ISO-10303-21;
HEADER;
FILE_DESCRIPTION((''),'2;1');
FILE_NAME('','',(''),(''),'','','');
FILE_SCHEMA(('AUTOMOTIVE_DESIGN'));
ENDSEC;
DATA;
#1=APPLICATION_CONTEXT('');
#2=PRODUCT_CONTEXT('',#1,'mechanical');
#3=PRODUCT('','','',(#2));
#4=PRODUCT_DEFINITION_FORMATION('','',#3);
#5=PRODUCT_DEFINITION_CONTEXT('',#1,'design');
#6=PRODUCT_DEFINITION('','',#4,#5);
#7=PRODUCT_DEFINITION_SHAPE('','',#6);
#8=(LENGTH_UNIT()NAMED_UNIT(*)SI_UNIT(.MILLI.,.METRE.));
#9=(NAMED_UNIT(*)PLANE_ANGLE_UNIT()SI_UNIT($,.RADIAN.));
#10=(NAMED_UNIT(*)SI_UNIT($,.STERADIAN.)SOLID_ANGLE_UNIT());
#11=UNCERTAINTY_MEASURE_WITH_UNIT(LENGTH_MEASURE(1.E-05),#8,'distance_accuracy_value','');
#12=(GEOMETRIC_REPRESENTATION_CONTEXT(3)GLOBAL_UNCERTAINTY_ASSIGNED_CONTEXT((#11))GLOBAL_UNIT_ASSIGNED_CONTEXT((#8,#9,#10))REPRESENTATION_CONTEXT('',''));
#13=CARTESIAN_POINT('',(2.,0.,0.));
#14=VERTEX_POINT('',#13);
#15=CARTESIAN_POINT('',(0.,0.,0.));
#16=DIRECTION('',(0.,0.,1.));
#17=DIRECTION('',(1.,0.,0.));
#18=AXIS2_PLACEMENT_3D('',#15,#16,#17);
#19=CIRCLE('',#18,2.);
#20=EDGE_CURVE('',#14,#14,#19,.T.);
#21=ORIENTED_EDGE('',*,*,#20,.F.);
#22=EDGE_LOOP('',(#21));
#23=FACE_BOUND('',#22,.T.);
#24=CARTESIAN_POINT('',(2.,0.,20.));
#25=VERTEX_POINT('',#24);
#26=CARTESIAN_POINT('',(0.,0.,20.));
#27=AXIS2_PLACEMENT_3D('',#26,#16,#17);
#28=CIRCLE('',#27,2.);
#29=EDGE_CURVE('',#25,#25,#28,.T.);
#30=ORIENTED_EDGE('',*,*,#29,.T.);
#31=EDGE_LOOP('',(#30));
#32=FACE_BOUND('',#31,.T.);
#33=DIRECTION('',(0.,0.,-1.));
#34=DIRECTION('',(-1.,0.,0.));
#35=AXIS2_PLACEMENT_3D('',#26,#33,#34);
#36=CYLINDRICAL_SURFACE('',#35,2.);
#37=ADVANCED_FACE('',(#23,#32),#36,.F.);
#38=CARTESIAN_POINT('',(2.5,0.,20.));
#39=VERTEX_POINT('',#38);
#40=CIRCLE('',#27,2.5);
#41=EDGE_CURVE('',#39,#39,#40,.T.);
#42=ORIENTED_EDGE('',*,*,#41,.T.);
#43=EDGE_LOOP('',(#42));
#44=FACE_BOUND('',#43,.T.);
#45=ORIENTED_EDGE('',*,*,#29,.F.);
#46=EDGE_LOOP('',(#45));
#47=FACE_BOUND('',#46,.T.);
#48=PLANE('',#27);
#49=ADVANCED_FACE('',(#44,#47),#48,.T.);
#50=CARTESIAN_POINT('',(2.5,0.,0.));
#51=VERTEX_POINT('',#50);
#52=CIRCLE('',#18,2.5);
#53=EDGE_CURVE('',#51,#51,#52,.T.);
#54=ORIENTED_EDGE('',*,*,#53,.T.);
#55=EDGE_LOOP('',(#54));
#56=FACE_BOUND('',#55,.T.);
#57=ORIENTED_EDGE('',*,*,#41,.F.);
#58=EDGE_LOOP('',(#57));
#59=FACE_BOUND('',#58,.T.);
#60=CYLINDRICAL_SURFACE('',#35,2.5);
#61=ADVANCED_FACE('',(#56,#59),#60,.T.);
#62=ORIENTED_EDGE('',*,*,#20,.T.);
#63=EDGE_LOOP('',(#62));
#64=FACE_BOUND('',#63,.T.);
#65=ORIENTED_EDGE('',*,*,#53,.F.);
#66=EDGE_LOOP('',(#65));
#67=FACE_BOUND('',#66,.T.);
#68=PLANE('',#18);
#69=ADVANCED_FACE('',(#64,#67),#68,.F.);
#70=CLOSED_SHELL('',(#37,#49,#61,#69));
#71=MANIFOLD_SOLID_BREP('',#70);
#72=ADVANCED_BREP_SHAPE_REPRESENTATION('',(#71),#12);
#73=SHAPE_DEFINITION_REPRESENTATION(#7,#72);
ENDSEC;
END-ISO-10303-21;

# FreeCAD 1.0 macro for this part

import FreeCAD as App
import Part
import Sketcher

V = App.Vector
Q = App.Units.Quantity

doc = App.newDocument("Part")
body = doc.addObject("PartDesign::Body", "Body")

# Sketch on XY plane
sketch1 = body.newObject("Sketcher::SketchObject", "Sketch")
sketch1.AttachmentSupport = (doc.getObject("XY_Plane"), [""])
sketch1.MapMode = "FlatFace"
sketch1.addGeometry(Part.Circle(V(0, 0, 0), V(0, 0, 1), 2.5), False)
sketch1.addGeometry(Part.Circle(V(0, 0, 0), V(0, 0, 1), 2), False)
sketch1.addConstraint(Sketcher.Constraint("Coincident", 0, 3, -1, 1))
sketch1.addConstraint(Sketcher.Constraint("Coincident", 1, 3, -1, 1))
sketch1.addConstraint(Sketcher.Constraint("Diameter", 0, Q("5 mm")))
sketch1.addConstraint(Sketcher.Constraint("Diameter", 1, Q("4 mm")))
pad1 = body.newObject("PartDesign::Pad", "Pad")
pad1.Profile = sketch1
pad1.Length = 20

doc.recompute()
